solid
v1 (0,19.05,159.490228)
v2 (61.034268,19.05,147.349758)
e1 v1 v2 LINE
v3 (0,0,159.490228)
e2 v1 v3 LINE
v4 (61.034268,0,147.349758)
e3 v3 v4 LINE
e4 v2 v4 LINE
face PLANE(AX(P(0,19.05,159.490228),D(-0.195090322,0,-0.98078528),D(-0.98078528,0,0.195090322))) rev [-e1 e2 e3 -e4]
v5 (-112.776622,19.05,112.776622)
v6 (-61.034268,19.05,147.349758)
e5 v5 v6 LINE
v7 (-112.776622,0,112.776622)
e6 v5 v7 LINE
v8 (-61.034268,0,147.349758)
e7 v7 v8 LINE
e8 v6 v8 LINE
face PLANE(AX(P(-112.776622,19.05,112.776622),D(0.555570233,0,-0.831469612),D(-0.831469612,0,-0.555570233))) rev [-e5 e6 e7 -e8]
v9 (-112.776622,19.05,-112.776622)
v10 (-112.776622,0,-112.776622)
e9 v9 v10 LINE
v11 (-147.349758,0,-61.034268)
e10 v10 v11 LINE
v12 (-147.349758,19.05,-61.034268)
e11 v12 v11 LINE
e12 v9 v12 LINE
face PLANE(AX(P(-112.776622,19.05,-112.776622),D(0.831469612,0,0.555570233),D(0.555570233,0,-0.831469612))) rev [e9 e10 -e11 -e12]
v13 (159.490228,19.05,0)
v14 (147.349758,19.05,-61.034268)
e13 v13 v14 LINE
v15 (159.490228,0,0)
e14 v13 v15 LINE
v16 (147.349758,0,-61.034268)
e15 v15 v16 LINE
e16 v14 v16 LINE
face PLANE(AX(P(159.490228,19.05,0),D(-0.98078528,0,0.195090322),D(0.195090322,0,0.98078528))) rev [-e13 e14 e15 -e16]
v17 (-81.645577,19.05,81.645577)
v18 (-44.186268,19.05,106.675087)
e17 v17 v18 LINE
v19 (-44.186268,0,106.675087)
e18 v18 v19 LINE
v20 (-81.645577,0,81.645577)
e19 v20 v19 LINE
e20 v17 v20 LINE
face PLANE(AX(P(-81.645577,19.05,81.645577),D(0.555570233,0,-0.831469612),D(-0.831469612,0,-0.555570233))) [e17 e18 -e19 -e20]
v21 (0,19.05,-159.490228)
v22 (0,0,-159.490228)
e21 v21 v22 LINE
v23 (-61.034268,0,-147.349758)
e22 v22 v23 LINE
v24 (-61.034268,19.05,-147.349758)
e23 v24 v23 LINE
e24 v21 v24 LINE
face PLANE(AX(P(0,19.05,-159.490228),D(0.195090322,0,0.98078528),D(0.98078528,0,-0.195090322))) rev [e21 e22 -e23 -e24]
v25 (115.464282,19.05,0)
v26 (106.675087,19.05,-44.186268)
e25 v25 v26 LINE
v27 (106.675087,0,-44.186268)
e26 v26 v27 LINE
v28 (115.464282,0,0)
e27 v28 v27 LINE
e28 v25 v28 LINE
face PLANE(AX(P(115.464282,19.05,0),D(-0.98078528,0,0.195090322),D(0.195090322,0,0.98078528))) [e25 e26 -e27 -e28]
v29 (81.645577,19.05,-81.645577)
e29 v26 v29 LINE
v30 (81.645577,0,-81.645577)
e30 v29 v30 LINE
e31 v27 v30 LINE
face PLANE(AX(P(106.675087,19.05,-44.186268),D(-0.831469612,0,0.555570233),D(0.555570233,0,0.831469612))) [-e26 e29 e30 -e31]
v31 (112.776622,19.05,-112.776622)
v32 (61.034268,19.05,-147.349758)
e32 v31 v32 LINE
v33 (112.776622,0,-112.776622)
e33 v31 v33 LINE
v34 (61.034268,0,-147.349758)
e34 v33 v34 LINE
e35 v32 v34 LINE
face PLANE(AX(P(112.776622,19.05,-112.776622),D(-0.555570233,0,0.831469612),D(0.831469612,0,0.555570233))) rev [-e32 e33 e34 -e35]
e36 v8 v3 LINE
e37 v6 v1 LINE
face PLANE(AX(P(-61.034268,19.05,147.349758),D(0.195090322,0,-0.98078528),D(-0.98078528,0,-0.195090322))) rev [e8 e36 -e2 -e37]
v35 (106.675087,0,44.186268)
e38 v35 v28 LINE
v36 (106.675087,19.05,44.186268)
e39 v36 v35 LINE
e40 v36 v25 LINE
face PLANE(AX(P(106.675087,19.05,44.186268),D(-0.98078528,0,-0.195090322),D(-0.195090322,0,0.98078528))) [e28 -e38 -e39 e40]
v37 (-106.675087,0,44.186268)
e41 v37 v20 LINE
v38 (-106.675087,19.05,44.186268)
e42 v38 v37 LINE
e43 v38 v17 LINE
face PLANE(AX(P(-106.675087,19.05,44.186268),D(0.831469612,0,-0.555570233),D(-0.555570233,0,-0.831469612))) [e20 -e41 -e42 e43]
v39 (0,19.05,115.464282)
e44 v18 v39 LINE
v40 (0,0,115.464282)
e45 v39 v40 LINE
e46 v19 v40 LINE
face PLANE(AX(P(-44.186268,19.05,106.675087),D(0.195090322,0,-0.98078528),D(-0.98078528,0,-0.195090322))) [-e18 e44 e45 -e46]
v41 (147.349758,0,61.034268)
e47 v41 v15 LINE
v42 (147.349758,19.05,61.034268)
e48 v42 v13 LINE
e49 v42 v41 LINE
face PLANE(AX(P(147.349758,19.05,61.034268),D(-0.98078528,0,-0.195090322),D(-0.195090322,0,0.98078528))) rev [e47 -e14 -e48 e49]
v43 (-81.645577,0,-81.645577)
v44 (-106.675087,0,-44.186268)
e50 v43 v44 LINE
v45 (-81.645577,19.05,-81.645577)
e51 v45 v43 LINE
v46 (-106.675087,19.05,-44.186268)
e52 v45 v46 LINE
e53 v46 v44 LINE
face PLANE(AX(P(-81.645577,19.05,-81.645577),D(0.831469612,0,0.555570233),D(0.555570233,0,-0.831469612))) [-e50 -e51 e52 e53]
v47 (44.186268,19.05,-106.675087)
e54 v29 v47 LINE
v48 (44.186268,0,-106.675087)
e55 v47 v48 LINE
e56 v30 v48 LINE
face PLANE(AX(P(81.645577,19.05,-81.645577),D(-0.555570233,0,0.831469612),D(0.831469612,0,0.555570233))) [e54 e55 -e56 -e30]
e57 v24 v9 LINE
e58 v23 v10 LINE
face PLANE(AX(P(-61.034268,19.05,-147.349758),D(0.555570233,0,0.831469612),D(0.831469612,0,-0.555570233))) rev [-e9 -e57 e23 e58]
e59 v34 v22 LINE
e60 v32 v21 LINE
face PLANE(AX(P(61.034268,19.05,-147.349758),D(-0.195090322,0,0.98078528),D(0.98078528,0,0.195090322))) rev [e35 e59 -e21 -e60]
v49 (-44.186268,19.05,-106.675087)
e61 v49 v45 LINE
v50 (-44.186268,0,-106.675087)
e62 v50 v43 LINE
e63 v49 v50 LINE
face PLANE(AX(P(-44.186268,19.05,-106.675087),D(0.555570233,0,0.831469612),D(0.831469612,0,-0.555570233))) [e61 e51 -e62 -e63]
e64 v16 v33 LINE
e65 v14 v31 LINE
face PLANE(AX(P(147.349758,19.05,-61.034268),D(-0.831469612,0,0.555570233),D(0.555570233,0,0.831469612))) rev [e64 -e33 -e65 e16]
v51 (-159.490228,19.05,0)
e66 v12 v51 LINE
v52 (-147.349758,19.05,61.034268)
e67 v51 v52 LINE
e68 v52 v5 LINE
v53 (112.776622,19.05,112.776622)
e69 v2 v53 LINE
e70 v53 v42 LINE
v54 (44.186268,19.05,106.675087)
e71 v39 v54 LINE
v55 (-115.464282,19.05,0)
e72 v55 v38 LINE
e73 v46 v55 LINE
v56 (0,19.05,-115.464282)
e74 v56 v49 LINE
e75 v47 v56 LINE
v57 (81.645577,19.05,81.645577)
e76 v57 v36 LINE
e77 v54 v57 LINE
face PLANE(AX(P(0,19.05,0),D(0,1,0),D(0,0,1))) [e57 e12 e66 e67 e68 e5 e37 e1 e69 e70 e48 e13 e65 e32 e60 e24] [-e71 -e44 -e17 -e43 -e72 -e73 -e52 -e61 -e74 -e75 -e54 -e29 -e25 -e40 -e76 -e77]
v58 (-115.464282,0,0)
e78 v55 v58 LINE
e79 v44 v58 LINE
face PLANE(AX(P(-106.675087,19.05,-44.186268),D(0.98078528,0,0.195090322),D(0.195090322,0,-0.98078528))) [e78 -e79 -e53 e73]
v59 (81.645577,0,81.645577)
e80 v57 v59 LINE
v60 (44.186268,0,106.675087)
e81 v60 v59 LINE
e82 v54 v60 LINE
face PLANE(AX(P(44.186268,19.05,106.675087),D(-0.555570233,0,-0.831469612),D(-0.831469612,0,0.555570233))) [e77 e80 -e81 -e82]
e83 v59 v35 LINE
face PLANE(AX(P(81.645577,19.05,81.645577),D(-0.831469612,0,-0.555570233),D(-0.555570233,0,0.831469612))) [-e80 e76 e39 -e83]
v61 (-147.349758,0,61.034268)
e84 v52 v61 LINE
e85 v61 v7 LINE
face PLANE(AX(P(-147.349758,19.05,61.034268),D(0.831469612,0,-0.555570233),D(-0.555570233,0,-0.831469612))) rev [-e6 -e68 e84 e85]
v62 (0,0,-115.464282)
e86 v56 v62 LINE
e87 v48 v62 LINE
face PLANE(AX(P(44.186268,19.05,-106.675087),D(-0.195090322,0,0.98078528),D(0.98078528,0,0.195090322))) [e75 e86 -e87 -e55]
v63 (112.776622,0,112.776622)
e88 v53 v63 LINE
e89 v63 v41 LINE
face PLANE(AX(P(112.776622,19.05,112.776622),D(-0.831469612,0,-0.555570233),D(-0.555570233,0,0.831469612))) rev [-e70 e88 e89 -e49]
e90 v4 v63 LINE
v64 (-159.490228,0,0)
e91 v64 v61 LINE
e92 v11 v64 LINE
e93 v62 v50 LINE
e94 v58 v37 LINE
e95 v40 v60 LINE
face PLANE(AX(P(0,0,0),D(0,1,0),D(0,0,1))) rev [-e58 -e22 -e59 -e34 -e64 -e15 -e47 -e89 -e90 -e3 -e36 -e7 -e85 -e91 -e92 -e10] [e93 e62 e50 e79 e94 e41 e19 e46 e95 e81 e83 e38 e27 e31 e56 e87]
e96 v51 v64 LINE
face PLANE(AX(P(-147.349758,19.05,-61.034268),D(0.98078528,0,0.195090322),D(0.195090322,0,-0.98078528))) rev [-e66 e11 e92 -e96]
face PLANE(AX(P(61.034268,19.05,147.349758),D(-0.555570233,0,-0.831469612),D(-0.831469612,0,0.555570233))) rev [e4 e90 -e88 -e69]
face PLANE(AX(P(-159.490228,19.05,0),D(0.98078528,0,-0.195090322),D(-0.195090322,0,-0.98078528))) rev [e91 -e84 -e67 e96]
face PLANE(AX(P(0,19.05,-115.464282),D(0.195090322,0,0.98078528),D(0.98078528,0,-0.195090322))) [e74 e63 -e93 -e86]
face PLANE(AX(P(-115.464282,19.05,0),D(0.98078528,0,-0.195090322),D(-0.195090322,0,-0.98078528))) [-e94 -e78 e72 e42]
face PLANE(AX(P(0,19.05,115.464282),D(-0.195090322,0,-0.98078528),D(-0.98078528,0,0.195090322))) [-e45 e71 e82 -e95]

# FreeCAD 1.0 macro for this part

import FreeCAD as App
import Part
import Sketcher
from FreeCAD import Vector
Q = App.Units.Quantity


def add_polygon(sketch, points):
    """Adds a closed chain of lines whose ends are joined by coincident constraints."""
    first, n = sketch.GeometryCount, len(points)
    for a, b in zip(points, points[1:] + points[:1]):
        sketch.addGeometry(Part.LineSegment(App.Vector(*a, 0), App.Vector(*b, 0)), False)
    for i in range(n):
        sketch.addConstraint(Sketcher.Constraint("Coincident", first + i, 2, first + (i + 1) % n, 1))

doc = App.newDocument("Part")
body = doc.addObject("PartDesign::Body", "Body")

# Sketch on XZ plane
sketch1 = doc.addObject("Sketcher::SketchObject", "Sketch")
body.addObject(sketch1)
sketch1.AttachmentSupport = (doc.XZ_Plane, [""])
sketch1.MapMode = "FlatFace"
add_polygon(sketch1, [(159, 0), (147, -61), (113, -113), (61, -147), (0, -159), (-61, -147), (-113, -113), (-147, -61), (-159, 0), (-147, 61), (-113, 113), (-61, 147), (0, 159), (61, 147), (113, 113), (147, 61)])  # lines 0-15
add_polygon(sketch1, [(107, -44), (115, 0), (107, 44), (82, 82), (44, 107), (0, 115), (-44, 107), (-82, 82), (-107, 44), (-115, 0), (-107, -44), (-82, -82), (-44, -107), (0, -115), (44, -107), (82, -82)])  # lines 16-31
sketch1.addConstraint(Sketcher.Constraint("Symmetric", 0, 2, 8, 2, -1, 1))
sketch1.addConstraint(Sketcher.Constraint("Symmetric", 1, 2, 9, 2, -1, 1))
sketch1.addConstraint(Sketcher.Constraint("Symmetric", 2, 2, 10, 2, -1, 1))
sketch1.addConstraint(Sketcher.Constraint("Symmetric", 3, 2, 11, 2, -1, 1))
sketch1.addConstraint(Sketcher.Constraint("Symmetric", 4, 2, 12, 2, -1, 1))
sketch1.addConstraint(Sketcher.Constraint("Symmetric", 5, 2, 13, 2, -1, 1))
sketch1.addConstraint(Sketcher.Constraint("Symmetric", 6, 2, 14, 2, -1, 1))
sketch1.addConstraint(Sketcher.Constraint("Symmetric", 7, 2, 15, 2, -1, 1))
sketch1.addConstraint(Sketcher.Constraint("Symmetric", 16, 2, 24, 2, -1, 1))
sketch1.addConstraint(Sketcher.Constraint("Symmetric", 17, 2, 25, 2, -1, 1))
sketch1.addConstraint(Sketcher.Constraint("Symmetric", 18, 2, 26, 2, -1, 1))
sketch1.addConstraint(Sketcher.Constraint("Symmetric", 19, 2, 27, 2, -1, 1))
sketch1.addConstraint(Sketcher.Constraint("Symmetric", 20, 2, 28, 2, -1, 1))
sketch1.addConstraint(Sketcher.Constraint("Symmetric", 21, 2, 29, 2, -1, 1))
sketch1.addConstraint(Sketcher.Constraint("Symmetric", 22, 2, 30, 2, -1, 1))
sketch1.addConstraint(Sketcher.Constraint("Symmetric", 23, 2, 31, 2, -1, 1))
sketch1.addConstraint(Sketcher.Constraint("Symmetric", 2, 2, 4, 2, -2))
sketch1.addConstraint(Sketcher.Constraint("Symmetric", 1, 2, 5, 2, -2))
sketch1.addConstraint(Sketcher.Constraint("Symmetric", 0, 2, 6, 2, -2))
sketch1.addConstraint(Sketcher.Constraint("Symmetric", 19, 2, 21, 2, -2))
sketch1.addConstraint(Sketcher.Constraint("Symmetric", 18, 2, 22, 2, -2))
sketch1.addConstraint(Sketcher.Constraint("Symmetric", 17, 2, 23, 2, -2))
sketch1.addConstraint(Sketcher.Constraint("PointOnObject", 3, 2, -2))
sketch1.addConstraint(Sketcher.Constraint("PointOnObject", 7, 2, -1))
sketch1.addConstraint(Sketcher.Constraint("PointOnObject", 16, 2, -1))
sketch1.addConstraint(Sketcher.Constraint("PointOnObject", 20, 2, -2))
sketch1.addConstraint(Sketcher.Constraint("Perpendicular", 0, 4))
sketch1.addConstraint(Sketcher.Constraint("Perpendicular", 1, 5))
sketch1.addConstraint(Sketcher.Constraint("Perpendicular", 12, 16))
sketch1.addConstraint(Sketcher.Constraint("Parallel", 14, 18))
sketch1.addConstraint(Sketcher.Constraint("Parallel", 13, 19))
sketch1.addConstraint(Sketcher.Constraint("Perpendicular", 16, 20))
sketch1.addConstraint(Sketcher.Constraint("Equal", 0, 1))
sketch1.addConstraint(Sketcher.Constraint("Equal", 1, 2))
sketch1.addConstraint(Sketcher.Constraint("Equal", 2, 3))
sketch1.addConstraint(Sketcher.Constraint("Equal", 17, 18))
sketch1.addConstraint(Sketcher.Constraint("Equal", 18, 19))
sketch1.addConstraint(Sketcher.Constraint("Equal", 19, 20))
sketch1.addConstraint(Sketcher.Constraint("Distance", 0, Q("2.45 in")))
sketch1.addConstraint(Sketcher.Constraint("Angle", 0, Q("-101.25 deg")))
sketch1.addConstraint(Sketcher.Constraint("Angle", 1, Q("-123.75 deg")))
sketch1.addConstraint(Sketcher.Constraint("DistanceY", 17, 2, 14, 2, Q("16.848 mm")))
pad1 = doc.addObject("PartDesign::Pad", "Pad")
body.addObject(pad1)
pad1.Profile = sketch1
pad1.Length = Q("0.75 in")
pad1.Reversed = True

doc.recompute()
